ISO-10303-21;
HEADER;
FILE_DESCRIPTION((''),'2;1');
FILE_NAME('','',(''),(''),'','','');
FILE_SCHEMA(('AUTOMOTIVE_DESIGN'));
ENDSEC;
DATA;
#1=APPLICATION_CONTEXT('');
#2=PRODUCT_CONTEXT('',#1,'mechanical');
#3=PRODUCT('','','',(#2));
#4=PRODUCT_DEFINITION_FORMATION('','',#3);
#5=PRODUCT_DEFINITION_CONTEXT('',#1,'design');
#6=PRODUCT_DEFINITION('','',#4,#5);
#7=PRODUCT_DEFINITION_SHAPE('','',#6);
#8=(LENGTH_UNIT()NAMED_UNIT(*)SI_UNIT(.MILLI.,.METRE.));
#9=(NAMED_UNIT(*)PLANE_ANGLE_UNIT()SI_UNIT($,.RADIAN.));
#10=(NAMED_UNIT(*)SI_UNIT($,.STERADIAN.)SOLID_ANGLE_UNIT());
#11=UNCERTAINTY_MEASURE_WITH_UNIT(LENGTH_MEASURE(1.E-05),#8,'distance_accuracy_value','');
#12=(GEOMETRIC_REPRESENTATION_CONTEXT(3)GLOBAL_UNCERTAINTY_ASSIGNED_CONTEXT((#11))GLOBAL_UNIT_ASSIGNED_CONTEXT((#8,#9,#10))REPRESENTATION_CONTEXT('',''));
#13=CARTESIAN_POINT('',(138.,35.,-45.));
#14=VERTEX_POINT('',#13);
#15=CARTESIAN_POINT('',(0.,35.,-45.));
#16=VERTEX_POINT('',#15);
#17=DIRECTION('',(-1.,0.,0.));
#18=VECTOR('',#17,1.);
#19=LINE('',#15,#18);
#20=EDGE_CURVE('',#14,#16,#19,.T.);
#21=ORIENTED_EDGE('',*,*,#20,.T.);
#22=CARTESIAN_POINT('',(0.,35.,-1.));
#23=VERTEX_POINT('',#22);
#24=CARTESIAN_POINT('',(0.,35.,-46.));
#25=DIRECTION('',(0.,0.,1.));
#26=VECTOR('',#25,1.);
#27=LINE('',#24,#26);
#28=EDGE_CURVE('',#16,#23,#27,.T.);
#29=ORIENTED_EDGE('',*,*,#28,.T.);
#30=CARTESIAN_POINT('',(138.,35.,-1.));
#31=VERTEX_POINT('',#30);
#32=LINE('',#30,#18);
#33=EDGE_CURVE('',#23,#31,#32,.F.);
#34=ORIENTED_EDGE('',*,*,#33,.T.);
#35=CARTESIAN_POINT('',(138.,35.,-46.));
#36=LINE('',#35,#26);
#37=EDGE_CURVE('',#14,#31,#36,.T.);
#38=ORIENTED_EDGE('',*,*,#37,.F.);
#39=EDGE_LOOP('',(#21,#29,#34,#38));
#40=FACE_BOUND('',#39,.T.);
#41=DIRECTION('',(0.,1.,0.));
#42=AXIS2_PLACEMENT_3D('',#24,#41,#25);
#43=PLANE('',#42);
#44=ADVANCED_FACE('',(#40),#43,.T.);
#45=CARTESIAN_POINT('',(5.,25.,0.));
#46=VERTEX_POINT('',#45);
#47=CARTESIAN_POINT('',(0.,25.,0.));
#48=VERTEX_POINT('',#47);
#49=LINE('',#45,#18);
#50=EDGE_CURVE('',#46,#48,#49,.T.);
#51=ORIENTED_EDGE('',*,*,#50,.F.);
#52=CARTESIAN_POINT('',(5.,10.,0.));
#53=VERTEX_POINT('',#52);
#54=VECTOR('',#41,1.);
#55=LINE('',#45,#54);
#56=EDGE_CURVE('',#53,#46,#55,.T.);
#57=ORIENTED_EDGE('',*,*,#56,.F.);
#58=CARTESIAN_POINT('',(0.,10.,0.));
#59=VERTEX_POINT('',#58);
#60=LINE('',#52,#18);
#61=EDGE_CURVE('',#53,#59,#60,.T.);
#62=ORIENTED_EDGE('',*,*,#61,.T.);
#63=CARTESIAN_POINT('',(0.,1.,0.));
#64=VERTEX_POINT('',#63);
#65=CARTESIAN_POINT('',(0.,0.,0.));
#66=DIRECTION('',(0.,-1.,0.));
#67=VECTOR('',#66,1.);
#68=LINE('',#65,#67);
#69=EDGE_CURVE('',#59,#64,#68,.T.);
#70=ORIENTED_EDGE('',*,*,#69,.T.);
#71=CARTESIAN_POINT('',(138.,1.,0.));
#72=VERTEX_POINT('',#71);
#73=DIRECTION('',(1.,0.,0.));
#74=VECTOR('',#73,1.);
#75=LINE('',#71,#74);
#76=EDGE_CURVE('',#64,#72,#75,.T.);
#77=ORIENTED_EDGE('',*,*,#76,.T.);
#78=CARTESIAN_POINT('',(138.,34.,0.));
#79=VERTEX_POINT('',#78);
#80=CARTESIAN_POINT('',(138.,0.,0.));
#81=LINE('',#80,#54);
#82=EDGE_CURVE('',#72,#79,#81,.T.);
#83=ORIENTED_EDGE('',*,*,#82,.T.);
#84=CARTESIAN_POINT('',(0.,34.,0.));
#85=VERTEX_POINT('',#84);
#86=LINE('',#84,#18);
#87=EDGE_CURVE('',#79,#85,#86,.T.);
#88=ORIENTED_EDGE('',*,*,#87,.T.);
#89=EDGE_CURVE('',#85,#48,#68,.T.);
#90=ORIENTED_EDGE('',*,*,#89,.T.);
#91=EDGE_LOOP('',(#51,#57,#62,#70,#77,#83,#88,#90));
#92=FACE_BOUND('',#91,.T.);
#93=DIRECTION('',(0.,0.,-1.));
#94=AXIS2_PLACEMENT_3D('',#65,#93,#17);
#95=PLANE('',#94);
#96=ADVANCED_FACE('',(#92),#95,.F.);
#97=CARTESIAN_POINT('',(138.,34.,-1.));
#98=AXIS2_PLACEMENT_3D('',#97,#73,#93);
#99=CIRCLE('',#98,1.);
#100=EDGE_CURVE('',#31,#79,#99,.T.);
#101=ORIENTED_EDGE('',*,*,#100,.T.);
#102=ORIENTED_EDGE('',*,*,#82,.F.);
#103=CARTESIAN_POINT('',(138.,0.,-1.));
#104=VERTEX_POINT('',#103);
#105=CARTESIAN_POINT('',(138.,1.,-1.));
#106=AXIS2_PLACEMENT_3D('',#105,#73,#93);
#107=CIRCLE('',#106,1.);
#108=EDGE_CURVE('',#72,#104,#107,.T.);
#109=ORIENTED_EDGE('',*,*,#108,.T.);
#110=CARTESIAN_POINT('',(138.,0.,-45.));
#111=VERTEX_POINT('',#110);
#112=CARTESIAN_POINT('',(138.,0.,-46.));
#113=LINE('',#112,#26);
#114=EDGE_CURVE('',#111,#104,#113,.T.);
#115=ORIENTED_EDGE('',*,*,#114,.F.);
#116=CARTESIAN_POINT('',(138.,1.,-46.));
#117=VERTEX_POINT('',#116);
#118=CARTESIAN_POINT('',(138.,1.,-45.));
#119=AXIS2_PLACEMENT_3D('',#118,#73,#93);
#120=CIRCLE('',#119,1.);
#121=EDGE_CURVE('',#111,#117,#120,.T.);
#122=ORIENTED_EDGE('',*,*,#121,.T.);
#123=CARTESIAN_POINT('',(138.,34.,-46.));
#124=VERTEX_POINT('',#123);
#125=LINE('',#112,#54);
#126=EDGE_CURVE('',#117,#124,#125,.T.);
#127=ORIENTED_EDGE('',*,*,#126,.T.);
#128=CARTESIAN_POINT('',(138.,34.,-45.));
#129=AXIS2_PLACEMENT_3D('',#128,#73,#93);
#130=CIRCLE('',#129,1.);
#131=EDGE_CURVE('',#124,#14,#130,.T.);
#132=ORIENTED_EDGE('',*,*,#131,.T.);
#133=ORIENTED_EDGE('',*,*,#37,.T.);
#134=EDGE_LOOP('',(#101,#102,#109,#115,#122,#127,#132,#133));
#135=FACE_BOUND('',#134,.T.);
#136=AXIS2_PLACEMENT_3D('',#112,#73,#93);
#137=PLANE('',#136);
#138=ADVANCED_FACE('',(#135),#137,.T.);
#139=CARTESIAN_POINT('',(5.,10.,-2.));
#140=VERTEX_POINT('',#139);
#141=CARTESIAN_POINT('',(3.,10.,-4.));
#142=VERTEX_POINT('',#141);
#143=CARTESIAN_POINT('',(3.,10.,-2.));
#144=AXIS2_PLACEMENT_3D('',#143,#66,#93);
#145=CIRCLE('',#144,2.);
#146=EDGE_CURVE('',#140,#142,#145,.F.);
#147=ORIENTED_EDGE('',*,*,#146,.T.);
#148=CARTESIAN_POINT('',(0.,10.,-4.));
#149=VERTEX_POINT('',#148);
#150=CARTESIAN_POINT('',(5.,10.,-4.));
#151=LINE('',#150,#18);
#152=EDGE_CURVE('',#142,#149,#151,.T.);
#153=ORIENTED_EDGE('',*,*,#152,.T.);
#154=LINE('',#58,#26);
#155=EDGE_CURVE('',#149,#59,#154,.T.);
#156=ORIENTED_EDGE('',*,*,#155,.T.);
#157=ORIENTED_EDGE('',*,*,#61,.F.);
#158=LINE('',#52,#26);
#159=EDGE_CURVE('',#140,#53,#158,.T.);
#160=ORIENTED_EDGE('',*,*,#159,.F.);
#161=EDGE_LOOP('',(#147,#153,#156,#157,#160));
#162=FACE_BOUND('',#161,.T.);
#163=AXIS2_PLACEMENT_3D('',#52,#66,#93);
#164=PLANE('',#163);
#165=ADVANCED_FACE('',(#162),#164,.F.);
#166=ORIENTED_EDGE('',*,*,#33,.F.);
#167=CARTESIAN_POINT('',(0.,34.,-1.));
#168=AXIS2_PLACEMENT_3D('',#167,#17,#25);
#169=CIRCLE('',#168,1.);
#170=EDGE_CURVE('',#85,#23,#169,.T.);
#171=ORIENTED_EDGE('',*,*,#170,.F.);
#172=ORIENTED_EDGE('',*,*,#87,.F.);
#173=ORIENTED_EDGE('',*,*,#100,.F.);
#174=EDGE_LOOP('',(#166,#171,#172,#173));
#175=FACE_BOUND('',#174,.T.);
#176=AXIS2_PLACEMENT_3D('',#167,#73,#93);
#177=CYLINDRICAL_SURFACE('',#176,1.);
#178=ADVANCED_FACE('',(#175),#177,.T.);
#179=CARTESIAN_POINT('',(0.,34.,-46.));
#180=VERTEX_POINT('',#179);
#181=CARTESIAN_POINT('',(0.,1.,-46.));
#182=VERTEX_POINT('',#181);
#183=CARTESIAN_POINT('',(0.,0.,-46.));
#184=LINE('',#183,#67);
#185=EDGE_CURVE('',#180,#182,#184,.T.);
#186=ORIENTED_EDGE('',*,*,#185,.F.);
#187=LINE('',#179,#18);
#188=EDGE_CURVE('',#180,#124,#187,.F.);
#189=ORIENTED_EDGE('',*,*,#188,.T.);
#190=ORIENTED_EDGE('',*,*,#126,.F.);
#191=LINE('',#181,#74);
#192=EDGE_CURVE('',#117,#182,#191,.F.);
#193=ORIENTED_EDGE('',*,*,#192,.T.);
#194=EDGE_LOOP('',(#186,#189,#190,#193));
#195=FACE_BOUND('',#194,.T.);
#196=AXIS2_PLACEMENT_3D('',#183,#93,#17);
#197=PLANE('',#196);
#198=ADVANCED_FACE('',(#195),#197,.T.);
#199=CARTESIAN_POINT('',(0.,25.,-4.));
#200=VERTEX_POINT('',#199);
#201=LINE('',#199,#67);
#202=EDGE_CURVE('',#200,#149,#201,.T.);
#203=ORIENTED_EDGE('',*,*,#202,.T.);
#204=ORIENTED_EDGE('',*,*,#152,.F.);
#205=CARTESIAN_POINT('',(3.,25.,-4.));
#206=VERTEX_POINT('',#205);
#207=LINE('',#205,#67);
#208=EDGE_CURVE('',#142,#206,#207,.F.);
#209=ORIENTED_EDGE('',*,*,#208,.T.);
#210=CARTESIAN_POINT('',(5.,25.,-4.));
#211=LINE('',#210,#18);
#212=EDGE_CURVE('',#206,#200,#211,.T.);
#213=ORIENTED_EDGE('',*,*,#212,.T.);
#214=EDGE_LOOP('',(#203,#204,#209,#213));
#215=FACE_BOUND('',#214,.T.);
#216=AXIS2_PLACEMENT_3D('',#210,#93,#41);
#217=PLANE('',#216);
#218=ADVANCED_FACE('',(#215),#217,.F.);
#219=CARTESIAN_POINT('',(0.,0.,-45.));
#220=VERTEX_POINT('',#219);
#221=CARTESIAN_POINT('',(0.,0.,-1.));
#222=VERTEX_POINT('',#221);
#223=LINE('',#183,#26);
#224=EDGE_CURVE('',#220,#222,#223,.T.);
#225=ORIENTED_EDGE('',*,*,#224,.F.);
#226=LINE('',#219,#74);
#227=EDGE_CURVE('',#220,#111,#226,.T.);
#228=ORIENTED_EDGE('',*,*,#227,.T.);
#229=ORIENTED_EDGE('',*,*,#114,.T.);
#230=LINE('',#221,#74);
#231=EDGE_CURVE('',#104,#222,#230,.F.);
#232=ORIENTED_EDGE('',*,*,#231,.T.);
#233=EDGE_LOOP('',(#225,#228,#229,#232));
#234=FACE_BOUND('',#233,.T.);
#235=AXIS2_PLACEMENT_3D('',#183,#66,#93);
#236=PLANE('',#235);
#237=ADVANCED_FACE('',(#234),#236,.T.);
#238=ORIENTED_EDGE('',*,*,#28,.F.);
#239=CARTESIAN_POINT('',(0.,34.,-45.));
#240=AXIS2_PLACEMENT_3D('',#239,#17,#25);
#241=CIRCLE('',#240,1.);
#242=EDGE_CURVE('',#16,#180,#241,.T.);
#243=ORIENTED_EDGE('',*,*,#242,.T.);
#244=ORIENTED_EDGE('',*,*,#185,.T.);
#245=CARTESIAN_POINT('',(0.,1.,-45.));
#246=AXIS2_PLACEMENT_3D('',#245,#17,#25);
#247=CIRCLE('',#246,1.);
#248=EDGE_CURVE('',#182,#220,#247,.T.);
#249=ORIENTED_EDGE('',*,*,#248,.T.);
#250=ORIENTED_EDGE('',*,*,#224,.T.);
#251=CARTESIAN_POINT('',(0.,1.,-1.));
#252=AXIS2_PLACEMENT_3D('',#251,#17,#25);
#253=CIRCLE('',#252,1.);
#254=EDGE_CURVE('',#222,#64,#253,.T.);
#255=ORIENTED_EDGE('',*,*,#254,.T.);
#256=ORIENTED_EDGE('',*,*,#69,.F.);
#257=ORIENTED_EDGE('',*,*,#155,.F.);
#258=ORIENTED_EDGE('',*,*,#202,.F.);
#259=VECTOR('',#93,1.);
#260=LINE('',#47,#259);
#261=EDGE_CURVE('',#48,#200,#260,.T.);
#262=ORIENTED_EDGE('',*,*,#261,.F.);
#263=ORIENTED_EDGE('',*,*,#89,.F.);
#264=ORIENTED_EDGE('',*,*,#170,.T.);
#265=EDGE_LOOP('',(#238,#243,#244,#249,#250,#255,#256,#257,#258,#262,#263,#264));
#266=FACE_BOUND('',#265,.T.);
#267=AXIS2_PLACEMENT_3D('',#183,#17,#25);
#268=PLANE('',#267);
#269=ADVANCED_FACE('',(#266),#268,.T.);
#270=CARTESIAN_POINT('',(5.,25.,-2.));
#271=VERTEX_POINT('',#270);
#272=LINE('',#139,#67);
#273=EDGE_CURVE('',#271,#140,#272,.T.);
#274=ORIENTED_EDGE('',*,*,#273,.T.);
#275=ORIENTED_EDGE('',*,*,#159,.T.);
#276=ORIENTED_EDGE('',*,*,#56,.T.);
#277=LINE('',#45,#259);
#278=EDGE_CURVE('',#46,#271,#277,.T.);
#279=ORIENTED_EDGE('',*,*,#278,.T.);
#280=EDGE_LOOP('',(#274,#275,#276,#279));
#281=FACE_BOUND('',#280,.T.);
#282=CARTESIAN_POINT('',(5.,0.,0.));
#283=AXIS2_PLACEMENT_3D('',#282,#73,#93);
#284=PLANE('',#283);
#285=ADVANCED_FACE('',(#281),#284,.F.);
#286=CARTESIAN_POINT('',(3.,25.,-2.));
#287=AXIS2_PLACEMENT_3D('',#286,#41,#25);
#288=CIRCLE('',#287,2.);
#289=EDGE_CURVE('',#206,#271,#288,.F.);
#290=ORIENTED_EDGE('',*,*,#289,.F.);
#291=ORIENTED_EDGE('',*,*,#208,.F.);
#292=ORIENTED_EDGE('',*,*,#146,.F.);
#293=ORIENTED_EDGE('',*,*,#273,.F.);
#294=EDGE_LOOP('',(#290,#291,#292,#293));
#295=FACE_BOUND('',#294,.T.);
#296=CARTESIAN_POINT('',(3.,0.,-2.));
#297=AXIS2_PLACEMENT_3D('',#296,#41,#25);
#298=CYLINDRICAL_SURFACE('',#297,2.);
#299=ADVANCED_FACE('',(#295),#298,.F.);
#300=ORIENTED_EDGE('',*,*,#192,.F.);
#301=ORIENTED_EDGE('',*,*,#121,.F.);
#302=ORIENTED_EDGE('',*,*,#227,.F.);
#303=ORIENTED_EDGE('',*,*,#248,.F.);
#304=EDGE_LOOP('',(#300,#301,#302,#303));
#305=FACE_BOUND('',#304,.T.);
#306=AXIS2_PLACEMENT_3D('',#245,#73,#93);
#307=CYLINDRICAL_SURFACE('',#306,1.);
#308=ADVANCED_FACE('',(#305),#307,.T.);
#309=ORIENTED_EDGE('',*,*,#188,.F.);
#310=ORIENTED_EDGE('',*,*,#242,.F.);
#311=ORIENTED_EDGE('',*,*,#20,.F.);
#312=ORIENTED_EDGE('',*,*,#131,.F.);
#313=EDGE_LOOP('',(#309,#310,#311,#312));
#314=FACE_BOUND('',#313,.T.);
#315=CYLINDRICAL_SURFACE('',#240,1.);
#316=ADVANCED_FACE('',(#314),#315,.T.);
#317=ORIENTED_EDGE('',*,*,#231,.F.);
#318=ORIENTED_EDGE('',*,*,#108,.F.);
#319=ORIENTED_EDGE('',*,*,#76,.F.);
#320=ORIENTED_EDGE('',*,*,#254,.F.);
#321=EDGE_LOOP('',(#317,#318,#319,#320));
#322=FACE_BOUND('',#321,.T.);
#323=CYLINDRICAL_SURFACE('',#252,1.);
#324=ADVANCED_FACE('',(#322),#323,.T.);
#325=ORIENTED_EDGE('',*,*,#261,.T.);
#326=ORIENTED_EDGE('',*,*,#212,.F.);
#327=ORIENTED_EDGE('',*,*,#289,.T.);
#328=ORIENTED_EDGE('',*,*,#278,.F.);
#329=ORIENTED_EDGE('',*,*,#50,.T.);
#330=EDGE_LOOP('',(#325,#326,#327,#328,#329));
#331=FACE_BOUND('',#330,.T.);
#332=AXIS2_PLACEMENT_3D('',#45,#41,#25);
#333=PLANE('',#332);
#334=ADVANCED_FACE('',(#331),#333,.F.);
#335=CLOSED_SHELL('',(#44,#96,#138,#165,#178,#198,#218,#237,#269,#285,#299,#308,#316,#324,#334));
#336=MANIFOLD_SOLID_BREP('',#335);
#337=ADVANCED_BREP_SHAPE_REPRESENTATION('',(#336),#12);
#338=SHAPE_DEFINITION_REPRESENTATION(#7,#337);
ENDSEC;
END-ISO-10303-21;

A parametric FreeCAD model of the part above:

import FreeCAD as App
import Part
import Sketcher

V = App.Vector
Q = App.Units.Quantity


def edges_at(feature, points):
    """Names of the edges that pass closest to the given points."""
    edges = feature.Shape.Edges
    near = lambda p: min(range(len(edges)), key=lambda i: edges[i].distToShape(Part.Vertex(*p))[0])
    return sorted({f"Edge{near(p) + 1}" for p in points})


def add_polygon(sketch, points):
    """Adds a closed chain of lines whose ends are joined by coincident constraints."""
    first, n = sketch.GeometryCount, len(points)
    for a, b in zip(points, points[1:] + points[:1]):
        sketch.addGeometry(Part.LineSegment(App.Vector(*a, 0), App.Vector(*b, 0)), False)
    for i in range(n):
        sketch.addConstraint(Sketcher.Constraint("Coincident", first + i, 2, first + (i + 1) % n, 1))

doc = App.newDocument("Part")
body = doc.addObject("PartDesign::Body", "Body")

# Sketch on XY plane
sketch1 = body.newObject("Sketcher::SketchObject", "Sketch")
sketch1.AttachmentSupport = (doc.getObject("XY_Plane"), [""])
sketch1.MapMode = "FlatFace"
add_polygon(sketch1, [(0, 35), (0, 0), (138, 0), (138, 35)])  # lines 0-3
sketch1.addConstraint([
    Sketcher.Constraint("Vertical", 0),
    Sketcher.Constraint("Horizontal", 1),
    Sketcher.Constraint("Vertical", 2),
    Sketcher.Constraint("Horizontal", 3),
    Sketcher.Constraint("Coincident", 0, 2, -1, 1),
    Sketcher.Constraint("DistanceX", 1, 1, 1, 2, Q("138 mm")),
    Sketcher.Constraint("DistanceY", 0, 2, 0, 1, Q("35 mm")),
])
pad1 = body.newObject("PartDesign::Pad", "Pad")
pad1.Profile = sketch1
pad1.Length = 46
pad1.Reversed = True
doc.recompute()

fillet = body.newObject("PartDesign::Fillet", "Fillet")
fillet.Base = (pad1, edges_at(pad1, [
    (69, 35, -46),
    (69, 35, 0),
    (69, 0, 0),
    (69, 0, -46),
]))
fillet.Radius = 1

# Sketch on YZ plane
sketch2 = body.newObject("Sketcher::SketchObject", "Sketch001")
sketch2.AttachmentSupport = (doc.getObject("YZ_Plane"), [""])
sketch2.MapMode = "FlatFace"
add_polygon(sketch2, [(25, -4), (10, -4), (10, 0), (25, 0)])  # lines 0-3
sketch2.addConstraint([
    Sketcher.Constraint("Horizontal", 0),
    Sketcher.Constraint("Vertical", 1),
    Sketcher.Constraint("Horizontal", 2),
    Sketcher.Constraint("Vertical", 3),
    Sketcher.Constraint("PointOnObject", 1, 2, -1),
    Sketcher.Constraint("DistanceX", 0, 2, 0, 1, Q("15 mm")),
    Sketcher.Constraint("DistanceY", 1, 1, 1, 2, Q("4 mm")),
    Sketcher.Constraint("DistanceX", -1, 1, 0, 2, Q("10 mm")),
])
pocket1 = body.newObject("PartDesign::Pocket", "Pocket")
pocket1.Profile = sketch2
pocket1.Length = 5
pocket1.Reversed = True
doc.recompute()

fillet2 = body.newObject("PartDesign::Fillet", "Fillet001")
fillet2.Base = (pocket1, edges_at(pocket1, [(5, 17.5, -4)]))
fillet2.Radius = 2

doc.recompute()
